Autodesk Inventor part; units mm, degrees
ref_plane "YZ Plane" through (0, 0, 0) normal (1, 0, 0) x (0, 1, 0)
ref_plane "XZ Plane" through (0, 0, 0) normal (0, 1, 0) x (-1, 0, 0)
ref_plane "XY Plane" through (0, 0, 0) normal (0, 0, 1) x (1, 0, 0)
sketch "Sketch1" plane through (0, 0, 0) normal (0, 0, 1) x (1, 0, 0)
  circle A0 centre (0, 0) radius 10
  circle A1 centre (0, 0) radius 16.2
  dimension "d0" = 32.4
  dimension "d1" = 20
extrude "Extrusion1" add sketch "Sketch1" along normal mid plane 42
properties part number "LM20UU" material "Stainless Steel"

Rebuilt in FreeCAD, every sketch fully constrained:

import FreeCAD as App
import Part
import Sketcher

V = App.Vector

doc = App.newDocument("Part")
body = doc.addObject("PartDesign::Body", "Body")

# Sketch on XY plane
sketch1 = doc.addObject("Sketcher::SketchObject", "Sketch")
body.addObject(sketch1)
sketch1.AttachmentSupport = (doc.XY_Plane, [""])
sketch1.MapMode = "FlatFace"
sketch1.addGeometry([
    Part.Circle(V(0, 0, 0), V(0, 0, 1), 16.2),
    Part.Circle(V(0, 0, 0), V(0, 0, 1), 10),
], False)
sketch1.addConstraint([
    Sketcher.Constraint("Coincident", 0, 3, -1, 1),
    Sketcher.Constraint("Coincident", 1, 3, -1, 1),
    Sketcher.Constraint("Diameter", 1, 20.0),
    Sketcher.Constraint("Diameter", 0, 32.4),
])
pad1 = doc.addObject("PartDesign::Pad", "Pad")
body.addObject(pad1)
pad1.Profile = sketch1
pad1.Length = 42
pad1.Midplane = True

doc.recompute()
